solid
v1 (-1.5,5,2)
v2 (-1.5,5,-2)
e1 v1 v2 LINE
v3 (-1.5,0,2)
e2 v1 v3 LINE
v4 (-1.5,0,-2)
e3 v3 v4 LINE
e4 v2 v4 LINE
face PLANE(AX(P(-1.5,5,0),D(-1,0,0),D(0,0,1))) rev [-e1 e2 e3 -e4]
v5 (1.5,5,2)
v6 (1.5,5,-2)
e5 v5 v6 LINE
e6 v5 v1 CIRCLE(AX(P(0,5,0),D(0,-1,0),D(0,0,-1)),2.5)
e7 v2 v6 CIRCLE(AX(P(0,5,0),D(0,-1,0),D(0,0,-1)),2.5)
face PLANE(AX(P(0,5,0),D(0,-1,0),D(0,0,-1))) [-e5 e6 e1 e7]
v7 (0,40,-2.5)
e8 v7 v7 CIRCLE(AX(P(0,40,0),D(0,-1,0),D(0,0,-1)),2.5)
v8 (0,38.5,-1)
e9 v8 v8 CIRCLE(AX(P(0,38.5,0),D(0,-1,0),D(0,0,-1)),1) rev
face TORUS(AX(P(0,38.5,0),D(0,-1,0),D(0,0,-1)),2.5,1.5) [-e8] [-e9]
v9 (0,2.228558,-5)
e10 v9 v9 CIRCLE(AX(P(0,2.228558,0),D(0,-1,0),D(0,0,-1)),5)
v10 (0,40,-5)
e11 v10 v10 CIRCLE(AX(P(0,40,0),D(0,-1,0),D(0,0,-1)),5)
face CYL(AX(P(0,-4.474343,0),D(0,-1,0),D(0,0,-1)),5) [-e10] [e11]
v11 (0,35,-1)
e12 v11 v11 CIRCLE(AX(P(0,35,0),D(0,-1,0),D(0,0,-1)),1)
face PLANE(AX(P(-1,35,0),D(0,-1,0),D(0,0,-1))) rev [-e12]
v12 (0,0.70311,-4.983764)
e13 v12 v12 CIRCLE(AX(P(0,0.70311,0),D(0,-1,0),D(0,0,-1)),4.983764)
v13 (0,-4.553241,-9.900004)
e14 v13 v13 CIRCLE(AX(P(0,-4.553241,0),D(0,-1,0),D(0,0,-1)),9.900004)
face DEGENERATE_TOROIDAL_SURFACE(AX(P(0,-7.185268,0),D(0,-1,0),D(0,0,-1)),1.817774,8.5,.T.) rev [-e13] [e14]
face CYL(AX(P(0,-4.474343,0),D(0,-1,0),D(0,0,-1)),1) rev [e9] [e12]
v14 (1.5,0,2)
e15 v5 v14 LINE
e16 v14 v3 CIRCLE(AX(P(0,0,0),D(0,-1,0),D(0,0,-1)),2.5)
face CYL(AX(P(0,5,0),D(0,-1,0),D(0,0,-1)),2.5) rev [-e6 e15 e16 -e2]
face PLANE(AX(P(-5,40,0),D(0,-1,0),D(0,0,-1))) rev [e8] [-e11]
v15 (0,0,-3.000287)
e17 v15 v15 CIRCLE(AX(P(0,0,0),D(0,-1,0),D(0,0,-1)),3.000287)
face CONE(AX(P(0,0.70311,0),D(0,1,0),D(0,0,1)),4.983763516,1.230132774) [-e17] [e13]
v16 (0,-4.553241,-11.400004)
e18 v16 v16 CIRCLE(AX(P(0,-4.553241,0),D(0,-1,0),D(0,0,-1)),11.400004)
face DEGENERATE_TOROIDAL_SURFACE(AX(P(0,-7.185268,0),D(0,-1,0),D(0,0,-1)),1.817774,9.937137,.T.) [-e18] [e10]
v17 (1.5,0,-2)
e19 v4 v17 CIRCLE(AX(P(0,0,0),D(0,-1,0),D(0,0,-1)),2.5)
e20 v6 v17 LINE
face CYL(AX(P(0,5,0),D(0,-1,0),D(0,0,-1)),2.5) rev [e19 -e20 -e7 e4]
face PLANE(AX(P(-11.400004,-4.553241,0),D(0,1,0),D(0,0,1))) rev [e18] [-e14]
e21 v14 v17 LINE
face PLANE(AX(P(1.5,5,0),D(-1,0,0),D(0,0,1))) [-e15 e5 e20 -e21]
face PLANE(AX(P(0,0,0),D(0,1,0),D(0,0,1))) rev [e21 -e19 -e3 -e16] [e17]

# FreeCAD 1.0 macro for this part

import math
import FreeCAD as App
import Part
import Sketcher
from FreeCAD import Vector
Q = App.Units.Quantity


def edges_at(feature, points):
    """Names of the edges that pass closest to the given points."""
    edges = feature.Shape.Edges
    near = lambda p: min(range(len(edges)), key=lambda i: edges[i].distToShape(Part.Vertex(*p))[0])
    return sorted({f"Edge{near(p) + 1}" for p in points})

doc = App.newDocument("Part")
params = doc.addObject("Spreadsheet::Sheet", "Params")
for row, (alias, value) in enumerate([
    ("sketch1_radius", "8.5 mm"),
    ("sketch1_width", "1 mm"),
    ("sketch1_width2", "4 mm"),
    ("sketch1_height", "5 mm"),
    ("sketch1_height2", "35 mm"),
    ("revolution_angle", "360 deg"),
    ("sketch2_radius", "2.5 mm"),
    ("sketch2_height", "4 mm"),
    ("pocket1_length", "5 mm"),
    ("fillet_radius", "1.5 mm"),
], start=1):
    params.set(f"A{row}", alias)
    params.set(f"B{row}", "=" + value)
    params.setAlias(f"B{row}", alias)

body = doc.addObject("PartDesign::Body", "Body")

# Sketch on XY plane
sketch1 = doc.addObject("Sketcher::SketchObject", "Sketch")
body.addObject(sketch1)
sketch1.AttachmentSupport = (doc.XY_Plane, [""])
sketch1.MapMode = "FlatFace"
sketch1.addGeometry(Part.LineSegment(Vector(0, 35, 0), Vector(-1, 35, 0)), False)
sketch1.addGeometry(Part.LineSegment(Vector(-1, 35, 0), Vector(-1, 40, 0)), False)
sketch1.addGeometry(Part.LineSegment(Vector(-1, 40, 0), Vector(-5, 40, 0)), False)
sketch1.addGeometry(Part.LineSegment(Vector(-5, 40, 0), Vector(-5, 2.2, 0)), False)
sketch1.addGeometry(Part.ArcOfCircle(Part.Circle(Vector(-1.8, -7.2, 0), Vector(0, 0, 1), 9.9), math.radians(109), math.radians(165)), False)
sketch1.addGeometry(Part.LineSegment(Vector(-11.4, -4.6, 0), Vector(-9.9, -4.6, 0)), False)
sketch1.addGeometry(Part.ArcOfCircle(Part.Circle(Vector(-1.8, -7.2, 0), Vector(0, 0, 1), 8.5), math.radians(112), math.radians(162)), False)
sketch1.addGeometry(Part.LineSegment(Vector(-5, 0.7, 0), Vector(-3, 0, 0)), False)
sketch1.addGeometry(Part.LineSegment(Vector(-3, 0, 0), Vector(0, 0, 0)), False)
sketch1.addGeometry(Part.LineSegment(Vector(0, 0, 0), Vector(0, 35, 0)), False)
sketch1.addConstraint(Sketcher.Constraint("Coincident", 0, 2, 1, 1))
sketch1.addConstraint(Sketcher.Constraint("Coincident", 1, 2, 2, 1))
sketch1.addConstraint(Sketcher.Constraint("Coincident", 2, 2, 3, 1))
sketch1.addConstraint(Sketcher.Constraint("Coincident", 3, 2, 4, 1))
sketch1.addConstraint(Sketcher.Constraint("Coincident", 4, 2, 5, 1))
sketch1.addConstraint(Sketcher.Constraint("Coincident", 5, 2, 6, 2))
sketch1.addConstraint(Sketcher.Constraint("Coincident", 6, 1, 7, 1))
sketch1.addConstraint(Sketcher.Constraint("Coincident", 7, 2, 8, 1))
sketch1.addConstraint(Sketcher.Constraint("Coincident", 8, 2, 9, 1))
sketch1.addConstraint(Sketcher.Constraint("Coincident", 9, 2, 0, 1))
sketch1.addConstraint(Sketcher.Constraint("Horizontal", 0))
sketch1.addConstraint(Sketcher.Constraint("Vertical", 1))
sketch1.addConstraint(Sketcher.Constraint("Horizontal", 2))
sketch1.addConstraint(Sketcher.Constraint("Vertical", 3))
sketch1.addConstraint(Sketcher.Constraint("Horizontal", 5))
sketch1.addConstraint(Sketcher.Constraint("Horizontal", 8))
sketch1.addConstraint(Sketcher.Constraint("Vertical", 9))
sketch1.addConstraint(Sketcher.Constraint("Coincident", 8, 2, -1, 1))
sketch1.addConstraint(Sketcher.Constraint("Coincident", 6, 3, 4, 3))
sketch1.addConstraint(Sketcher.Constraint("Radius", 6, Q("8.5 mm")))
sketch1.addConstraint(Sketcher.Constraint("DistanceX", 0, 2, 0, 1, Q("1 mm")))
sketch1.addConstraint(Sketcher.Constraint("DistanceX", 2, 2, 2, 1, Q("4 mm")))
sketch1.addConstraint(Sketcher.Constraint("DistanceY", 1, 1, 1, 2, Q("5 mm")))
sketch1.addConstraint(Sketcher.Constraint("DistanceY", 9, 1, 9, 2, Q("35 mm")))
sketch1.addConstraint(Sketcher.Constraint("DistanceX", 5, 1, 5, 2, Q("1.5 mm")))
sketch1.addConstraint(Sketcher.Constraint("Radius", 4, Q("9.937137 mm")))
sketch1.addConstraint(Sketcher.Constraint("DistanceY", 3, 2, 3, 1, Q("37.771442 mm")))
sketch1.addConstraint(Sketcher.Constraint("DistanceY", 4, 2, 3, 2, Q("6.781799 mm")))
sketch1.addConstraint(Sketcher.Constraint("Distance", 7, Q("2.10441 mm")))
sketch1.addConstraint(Sketcher.Constraint("DistanceX", 8, 1, 8, 2, Q("3.000287 mm")))
sketch1.setExpression("Constraints[19]", "Params.sketch1_radius")
sketch1.setExpression("Constraints[20]", "Params.sketch1_width")
sketch1.setExpression("Constraints[21]", "Params.sketch1_width2")
sketch1.setExpression("Constraints[22]", "Params.sketch1_height")
sketch1.setExpression("Constraints[23]", "Params.sketch1_height2")
revolution = doc.addObject("PartDesign::Revolution", "Revolution")
body.addObject(revolution)
revolution.Profile = sketch1
revolution.ReferenceAxis = (sketch1, ["V_Axis"])
revolution.setExpression("Angle", "Params.revolution_angle")

# Sketch on XZ plane
sketch2 = doc.addObject("Sketcher::SketchObject", "Sketch001")
body.addObject(sketch2)
sketch2.AttachmentSupport = (doc.XZ_Plane, [""])
sketch2.MapMode = "FlatFace"
sketch2.addGeometry(Part.ArcOfCircle(Part.Circle(Vector(0, 0, 0), Vector(0, 0, 1), 2.5), math.radians(53), math.radians(127)), False)
sketch2.addGeometry(Part.LineSegment(Vector(-1.5, 2, 0), Vector(-1.5, -2, 0)), False)
sketch2.addGeometry(Part.ArcOfCircle(Part.Circle(Vector(0, 0, 0), Vector(0, 0, 1), 2.5), math.radians(-127), math.radians(-53)), False)
sketch2.addGeometry(Part.LineSegment(Vector(1.5, -2, 0), Vector(1.5, 2, 0)), False)
sketch2.addConstraint(Sketcher.Constraint("Coincident", 0, 2, 1, 1))
sketch2.addConstraint(Sketcher.Constraint("Coincident", 1, 2, 2, 1))
sketch2.addConstraint(Sketcher.Constraint("Coincident", 2, 2, 3, 1))
sketch2.addConstraint(Sketcher.Constraint("Coincident", 3, 2, 0, 1))
sketch2.addConstraint(Sketcher.Constraint("Vertical", 1))
sketch2.addConstraint(Sketcher.Constraint("Vertical", 3))
sketch2.addConstraint(Sketcher.Constraint("Coincident", 0, 3, -1, 1))
sketch2.addConstraint(Sketcher.Constraint("Coincident", 2, 3, -1, 1))
sketch2.addConstraint(Sketcher.Constraint("Equal", 0, 2))
sketch2.addConstraint(Sketcher.Constraint("Horizontal", 1, 2, 2, 2))
sketch2.addConstraint(Sketcher.Constraint("Radius", 0, Q("2.5 mm")))
sketch2.addConstraint(Sketcher.Constraint("DistanceY", 1, 2, 1, 1, Q("4 mm")))
sketch2.setExpression("Constraints[10]", "Params.sketch2_radius")
sketch2.setExpression("Constraints[11]", "Params.sketch2_height")
pocket1 = doc.addObject("PartDesign::Pocket", "Pocket")
body.addObject(pocket1)
pocket1.Profile = sketch2
pocket1.setExpression("Length", "Params.pocket1_length")
doc.recompute()

fillet = doc.addObject("PartDesign::Fillet", "Fillet")
body.addObject(fillet)
fillet.Base = (pocket1, edges_at(pocket1, [(0, 40, 1)]))
fillet.setExpression("Radius", "Params.fillet_radius")

doc.recompute()
